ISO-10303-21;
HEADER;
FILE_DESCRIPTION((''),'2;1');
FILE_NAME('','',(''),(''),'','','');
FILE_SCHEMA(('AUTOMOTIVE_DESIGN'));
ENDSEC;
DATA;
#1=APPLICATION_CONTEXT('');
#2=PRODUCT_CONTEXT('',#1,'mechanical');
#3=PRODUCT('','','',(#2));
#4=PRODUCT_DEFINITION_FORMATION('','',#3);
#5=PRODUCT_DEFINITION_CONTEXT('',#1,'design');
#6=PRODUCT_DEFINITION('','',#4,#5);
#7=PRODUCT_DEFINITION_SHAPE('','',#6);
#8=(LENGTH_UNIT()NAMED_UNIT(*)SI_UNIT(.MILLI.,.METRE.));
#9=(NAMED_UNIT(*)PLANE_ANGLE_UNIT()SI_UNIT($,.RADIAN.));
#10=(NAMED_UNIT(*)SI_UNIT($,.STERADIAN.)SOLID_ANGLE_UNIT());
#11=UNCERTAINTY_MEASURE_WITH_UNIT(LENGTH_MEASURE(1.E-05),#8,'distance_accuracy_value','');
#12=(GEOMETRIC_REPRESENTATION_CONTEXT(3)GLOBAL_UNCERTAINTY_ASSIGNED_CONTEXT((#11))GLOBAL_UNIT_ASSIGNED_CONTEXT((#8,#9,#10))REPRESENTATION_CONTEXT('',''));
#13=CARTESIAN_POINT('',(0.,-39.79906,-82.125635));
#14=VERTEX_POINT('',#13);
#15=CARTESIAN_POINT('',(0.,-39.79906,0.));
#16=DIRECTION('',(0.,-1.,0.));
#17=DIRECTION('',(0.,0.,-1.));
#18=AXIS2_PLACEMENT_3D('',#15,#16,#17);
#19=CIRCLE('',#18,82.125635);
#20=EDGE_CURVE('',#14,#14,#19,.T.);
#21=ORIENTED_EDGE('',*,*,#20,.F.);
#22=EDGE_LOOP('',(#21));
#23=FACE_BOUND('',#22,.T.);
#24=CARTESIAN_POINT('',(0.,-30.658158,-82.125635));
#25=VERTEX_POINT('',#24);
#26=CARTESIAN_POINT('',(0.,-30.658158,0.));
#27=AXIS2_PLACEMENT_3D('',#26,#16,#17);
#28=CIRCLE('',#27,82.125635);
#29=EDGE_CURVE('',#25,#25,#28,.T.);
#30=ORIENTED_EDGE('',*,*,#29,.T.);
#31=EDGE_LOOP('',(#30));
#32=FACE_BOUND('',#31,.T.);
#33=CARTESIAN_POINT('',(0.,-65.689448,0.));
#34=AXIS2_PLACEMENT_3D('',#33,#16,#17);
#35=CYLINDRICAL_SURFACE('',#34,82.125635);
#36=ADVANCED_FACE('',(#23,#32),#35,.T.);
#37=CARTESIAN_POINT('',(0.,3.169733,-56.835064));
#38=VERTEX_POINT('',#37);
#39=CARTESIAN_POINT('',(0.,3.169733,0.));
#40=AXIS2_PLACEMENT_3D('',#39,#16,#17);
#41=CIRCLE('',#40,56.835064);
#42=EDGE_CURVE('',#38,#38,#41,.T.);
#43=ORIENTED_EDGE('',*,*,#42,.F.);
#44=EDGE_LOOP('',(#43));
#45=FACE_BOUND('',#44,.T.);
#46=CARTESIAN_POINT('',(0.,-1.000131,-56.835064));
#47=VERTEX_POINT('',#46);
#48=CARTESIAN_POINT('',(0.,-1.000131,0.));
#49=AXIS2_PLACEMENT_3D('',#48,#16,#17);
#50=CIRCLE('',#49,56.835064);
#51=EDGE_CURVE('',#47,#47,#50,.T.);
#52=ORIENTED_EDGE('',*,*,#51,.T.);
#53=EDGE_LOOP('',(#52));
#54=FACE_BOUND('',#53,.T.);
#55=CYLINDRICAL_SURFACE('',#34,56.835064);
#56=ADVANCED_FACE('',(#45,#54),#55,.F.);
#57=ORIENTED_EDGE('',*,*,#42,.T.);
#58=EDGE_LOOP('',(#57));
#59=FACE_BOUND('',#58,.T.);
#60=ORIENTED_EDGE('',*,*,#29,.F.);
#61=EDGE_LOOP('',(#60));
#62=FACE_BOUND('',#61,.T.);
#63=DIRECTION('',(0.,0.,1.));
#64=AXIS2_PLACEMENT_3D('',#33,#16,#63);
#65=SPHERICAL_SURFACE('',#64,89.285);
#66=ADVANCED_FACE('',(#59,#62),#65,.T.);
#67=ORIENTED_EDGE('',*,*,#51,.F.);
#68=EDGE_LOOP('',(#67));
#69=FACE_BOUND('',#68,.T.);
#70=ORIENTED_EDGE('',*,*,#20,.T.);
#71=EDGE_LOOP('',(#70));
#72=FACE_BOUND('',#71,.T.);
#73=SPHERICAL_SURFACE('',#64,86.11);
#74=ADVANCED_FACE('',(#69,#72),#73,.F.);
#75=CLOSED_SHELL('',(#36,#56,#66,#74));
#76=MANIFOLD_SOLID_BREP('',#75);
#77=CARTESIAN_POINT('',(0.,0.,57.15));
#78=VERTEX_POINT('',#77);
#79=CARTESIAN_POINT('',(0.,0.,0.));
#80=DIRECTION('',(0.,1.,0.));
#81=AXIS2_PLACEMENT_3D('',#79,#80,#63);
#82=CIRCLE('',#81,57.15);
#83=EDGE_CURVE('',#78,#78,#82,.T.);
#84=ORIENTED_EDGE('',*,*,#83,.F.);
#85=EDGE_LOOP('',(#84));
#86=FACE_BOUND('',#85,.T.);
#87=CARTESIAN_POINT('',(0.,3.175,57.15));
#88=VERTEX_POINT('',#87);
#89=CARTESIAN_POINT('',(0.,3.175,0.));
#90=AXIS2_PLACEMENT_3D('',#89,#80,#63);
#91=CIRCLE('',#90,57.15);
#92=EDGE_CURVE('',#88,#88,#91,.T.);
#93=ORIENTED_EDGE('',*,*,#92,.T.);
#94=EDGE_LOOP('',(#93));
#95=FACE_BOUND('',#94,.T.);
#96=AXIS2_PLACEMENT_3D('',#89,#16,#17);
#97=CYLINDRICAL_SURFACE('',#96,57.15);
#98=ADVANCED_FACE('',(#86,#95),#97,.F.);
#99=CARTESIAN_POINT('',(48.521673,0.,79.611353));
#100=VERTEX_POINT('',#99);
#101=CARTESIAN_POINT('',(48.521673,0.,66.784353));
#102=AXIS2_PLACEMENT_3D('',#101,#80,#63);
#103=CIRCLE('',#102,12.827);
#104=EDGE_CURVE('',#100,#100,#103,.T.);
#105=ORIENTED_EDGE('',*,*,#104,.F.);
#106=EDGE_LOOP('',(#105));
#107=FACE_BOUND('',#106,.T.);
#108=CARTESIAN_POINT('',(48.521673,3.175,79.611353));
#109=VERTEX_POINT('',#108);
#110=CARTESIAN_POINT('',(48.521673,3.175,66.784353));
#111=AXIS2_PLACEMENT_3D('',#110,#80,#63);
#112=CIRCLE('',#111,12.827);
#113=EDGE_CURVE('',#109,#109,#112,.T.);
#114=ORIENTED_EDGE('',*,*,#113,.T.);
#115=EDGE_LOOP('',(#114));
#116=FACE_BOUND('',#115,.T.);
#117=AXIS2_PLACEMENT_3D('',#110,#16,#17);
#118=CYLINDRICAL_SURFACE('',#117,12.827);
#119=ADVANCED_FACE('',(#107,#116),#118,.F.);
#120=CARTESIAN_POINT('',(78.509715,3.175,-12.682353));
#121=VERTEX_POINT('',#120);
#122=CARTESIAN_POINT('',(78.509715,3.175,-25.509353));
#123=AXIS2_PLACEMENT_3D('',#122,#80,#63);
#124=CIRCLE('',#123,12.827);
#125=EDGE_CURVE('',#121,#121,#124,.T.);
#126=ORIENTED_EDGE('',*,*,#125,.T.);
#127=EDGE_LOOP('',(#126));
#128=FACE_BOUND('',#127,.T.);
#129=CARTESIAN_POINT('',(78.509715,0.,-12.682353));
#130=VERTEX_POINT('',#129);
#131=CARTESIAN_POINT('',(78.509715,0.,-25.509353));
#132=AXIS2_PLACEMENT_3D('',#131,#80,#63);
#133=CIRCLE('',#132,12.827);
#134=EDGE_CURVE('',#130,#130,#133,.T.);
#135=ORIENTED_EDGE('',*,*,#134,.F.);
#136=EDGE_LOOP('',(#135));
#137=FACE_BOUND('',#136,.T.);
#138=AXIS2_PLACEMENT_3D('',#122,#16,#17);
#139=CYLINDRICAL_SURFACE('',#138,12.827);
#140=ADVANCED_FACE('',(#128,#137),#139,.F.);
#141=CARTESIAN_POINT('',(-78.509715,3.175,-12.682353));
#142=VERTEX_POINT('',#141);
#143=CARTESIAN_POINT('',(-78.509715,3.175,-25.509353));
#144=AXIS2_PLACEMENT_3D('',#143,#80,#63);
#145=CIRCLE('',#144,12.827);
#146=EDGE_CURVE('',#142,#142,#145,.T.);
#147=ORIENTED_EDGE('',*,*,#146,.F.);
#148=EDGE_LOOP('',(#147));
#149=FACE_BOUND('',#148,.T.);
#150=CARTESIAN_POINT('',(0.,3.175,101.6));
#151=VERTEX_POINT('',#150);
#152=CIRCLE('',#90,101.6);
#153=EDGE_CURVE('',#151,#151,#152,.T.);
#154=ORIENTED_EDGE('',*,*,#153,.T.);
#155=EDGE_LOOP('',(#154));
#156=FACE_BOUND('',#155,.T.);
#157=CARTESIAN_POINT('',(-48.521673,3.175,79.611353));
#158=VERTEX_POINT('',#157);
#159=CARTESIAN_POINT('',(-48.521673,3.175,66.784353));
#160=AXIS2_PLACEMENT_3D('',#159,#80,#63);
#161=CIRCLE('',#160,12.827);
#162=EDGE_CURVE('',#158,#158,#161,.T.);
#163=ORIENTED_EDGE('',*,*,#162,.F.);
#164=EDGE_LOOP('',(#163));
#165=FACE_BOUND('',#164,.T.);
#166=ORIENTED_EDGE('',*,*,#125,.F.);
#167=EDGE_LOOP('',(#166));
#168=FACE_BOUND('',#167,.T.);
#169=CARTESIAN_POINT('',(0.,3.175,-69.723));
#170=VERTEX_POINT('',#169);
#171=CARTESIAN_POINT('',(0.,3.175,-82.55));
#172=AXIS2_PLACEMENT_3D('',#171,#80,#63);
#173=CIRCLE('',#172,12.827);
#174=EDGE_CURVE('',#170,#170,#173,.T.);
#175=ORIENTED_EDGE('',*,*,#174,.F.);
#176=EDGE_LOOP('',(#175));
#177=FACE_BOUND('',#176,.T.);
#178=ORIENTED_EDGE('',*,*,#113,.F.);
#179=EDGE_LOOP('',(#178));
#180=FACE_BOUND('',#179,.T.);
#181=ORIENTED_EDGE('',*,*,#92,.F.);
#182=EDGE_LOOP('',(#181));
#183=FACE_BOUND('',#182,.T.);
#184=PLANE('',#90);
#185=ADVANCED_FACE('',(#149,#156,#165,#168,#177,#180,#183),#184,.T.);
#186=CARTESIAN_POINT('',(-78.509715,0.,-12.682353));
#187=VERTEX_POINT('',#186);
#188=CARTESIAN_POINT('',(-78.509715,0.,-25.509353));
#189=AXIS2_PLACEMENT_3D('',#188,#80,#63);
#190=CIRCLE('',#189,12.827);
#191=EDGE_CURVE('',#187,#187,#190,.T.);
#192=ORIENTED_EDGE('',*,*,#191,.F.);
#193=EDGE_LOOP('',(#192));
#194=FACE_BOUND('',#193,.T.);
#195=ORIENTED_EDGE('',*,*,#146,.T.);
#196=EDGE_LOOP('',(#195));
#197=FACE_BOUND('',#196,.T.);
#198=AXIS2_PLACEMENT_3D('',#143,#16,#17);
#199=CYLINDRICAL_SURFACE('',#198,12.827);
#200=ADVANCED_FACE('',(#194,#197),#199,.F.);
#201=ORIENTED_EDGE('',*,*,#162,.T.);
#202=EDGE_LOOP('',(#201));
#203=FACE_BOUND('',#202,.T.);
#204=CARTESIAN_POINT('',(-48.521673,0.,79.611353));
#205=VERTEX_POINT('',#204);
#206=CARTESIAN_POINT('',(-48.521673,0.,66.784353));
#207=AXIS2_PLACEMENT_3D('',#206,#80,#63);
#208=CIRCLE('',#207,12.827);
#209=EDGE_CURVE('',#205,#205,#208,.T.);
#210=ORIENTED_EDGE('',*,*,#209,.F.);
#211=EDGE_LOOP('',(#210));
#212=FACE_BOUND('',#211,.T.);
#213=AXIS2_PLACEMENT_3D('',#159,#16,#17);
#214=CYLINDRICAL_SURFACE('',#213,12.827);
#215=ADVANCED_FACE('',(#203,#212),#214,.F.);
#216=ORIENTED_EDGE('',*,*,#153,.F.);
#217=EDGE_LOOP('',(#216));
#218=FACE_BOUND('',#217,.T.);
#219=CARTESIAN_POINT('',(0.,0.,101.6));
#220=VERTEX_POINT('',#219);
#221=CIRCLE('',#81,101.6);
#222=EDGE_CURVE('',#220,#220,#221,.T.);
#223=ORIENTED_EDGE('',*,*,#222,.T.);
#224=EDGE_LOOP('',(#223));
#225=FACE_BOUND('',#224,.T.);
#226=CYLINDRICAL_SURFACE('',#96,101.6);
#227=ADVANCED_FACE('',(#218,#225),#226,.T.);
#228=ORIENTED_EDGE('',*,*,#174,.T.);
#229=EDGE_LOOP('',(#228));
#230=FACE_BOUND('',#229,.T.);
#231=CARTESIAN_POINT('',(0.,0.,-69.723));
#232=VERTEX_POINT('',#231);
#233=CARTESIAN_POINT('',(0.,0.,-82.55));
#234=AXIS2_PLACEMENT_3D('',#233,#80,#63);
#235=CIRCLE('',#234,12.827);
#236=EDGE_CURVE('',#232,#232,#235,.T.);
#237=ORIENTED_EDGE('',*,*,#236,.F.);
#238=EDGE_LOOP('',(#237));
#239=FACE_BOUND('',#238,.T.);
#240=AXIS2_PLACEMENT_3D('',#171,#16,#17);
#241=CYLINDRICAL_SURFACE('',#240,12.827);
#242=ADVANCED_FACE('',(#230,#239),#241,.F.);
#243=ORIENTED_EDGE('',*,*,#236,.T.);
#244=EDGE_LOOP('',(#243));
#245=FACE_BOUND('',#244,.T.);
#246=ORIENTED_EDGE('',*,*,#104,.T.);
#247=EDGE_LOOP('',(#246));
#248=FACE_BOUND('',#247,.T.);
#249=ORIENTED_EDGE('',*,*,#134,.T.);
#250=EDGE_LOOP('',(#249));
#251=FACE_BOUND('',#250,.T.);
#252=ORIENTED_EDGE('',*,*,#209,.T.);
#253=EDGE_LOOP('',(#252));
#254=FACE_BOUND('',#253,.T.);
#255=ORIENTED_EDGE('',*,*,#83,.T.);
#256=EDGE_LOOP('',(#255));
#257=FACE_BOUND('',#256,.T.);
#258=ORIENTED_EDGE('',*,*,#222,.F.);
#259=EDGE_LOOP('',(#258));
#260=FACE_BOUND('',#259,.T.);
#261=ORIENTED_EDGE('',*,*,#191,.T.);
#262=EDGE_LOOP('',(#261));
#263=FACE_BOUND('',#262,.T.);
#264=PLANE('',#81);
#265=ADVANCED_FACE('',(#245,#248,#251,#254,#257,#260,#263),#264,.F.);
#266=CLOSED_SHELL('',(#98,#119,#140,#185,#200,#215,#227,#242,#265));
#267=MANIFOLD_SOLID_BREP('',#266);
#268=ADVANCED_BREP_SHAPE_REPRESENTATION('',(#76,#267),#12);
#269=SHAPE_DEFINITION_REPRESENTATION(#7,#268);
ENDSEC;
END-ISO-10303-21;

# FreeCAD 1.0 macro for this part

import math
import FreeCAD as App
import Part
import Sketcher
Q = App.Units.Quantity

doc = App.newDocument("Part")
body = doc.addObject("PartDesign::Body", "Body")

sketch1 = body.newObject("Sketcher::SketchObject", "Sketch")
sketch1.AttachmentSupport = (doc.getObject("YZ_Plane"), [""])
sketch1.MapMode = "FlatFace"
sketch1.addGeometry([
    Part.LineSegment(App.Vector(-30.7, 82.1, 0), App.Vector(-39.8, 82.1, 0)),
    Part.ArcOfCircle(Part.Circle(App.Vector(-65.7, 0, 0), App.Vector(0, 0, 1), 86.1), math.radians(41), math.radians(73)),
    Part.LineSegment(App.Vector(-1, 56.8, 0), App.Vector(3.2, 56.8, 0)),
    Part.ArcOfCircle(Part.Circle(App.Vector(-65.7, 0, 0), App.Vector(0, 0, 1), 89.3), math.radians(40), math.radians(67)),
], False)
sketch1.addConstraint([
    Sketcher.Constraint("Coincident", 0, 2, 1, 2),
    Sketcher.Constraint("Coincident", 1, 1, 2, 1),
    Sketcher.Constraint("Coincident", 2, 2, 3, 1),
    Sketcher.Constraint("Coincident", 3, 2, 0, 1),
    Sketcher.Constraint("Horizontal", 0),
    Sketcher.Constraint("Horizontal", 2),
    Sketcher.Constraint("Coincident", 3, 3, 1, 3),
    Sketcher.Constraint("PointOnObject", 1, 3, -1),
    Sketcher.Constraint("Radius", 1, 86.11),
    Sketcher.Constraint("Radius", 3, 89.285),
    Sketcher.Constraint("DistanceX", 0, 2, 0, 1, 9.140903),
    Sketcher.Constraint("DistanceX", 2, 1, 2, 2, 4.169864),
    Sketcher.Constraint("DistanceX", 0, 2, -1, 1, 39.79906),
])
revolution = body.newObject("PartDesign::Revolution", "Revolution")
revolution.Profile = sketch1
revolution.ReferenceAxis = (sketch1, ["H_Axis"])
revolution.Angle = 360
body2 = doc.addObject("PartDesign::Body", "Body001")

sketch2 = body2.newObject("Sketcher::SketchObject", "Sketch001")
sketch2.AttachmentSupport = (doc.getObject("XZ_Plane001"), [""])
sketch2.MapMode = "FlatFace"
sketch2.addGeometry([
    Part.Circle(App.Vector(0, 0, 0), App.Vector(0, 0, 1), 102),
    Part.Circle(App.Vector(-49, 67, 0), App.Vector(0, 0, 1), 13),
    Part.Circle(App.Vector(49, 67, 0), App.Vector(0, 0, 1), 13),
    Part.Circle(App.Vector(0, 0, 0), App.Vector(0, 0, 1), 57),
    Part.Circle(App.Vector(-79, -26, 0), App.Vector(0, 0, 1), 13),
    Part.Circle(App.Vector(79, -26, 0), App.Vector(0, 0, 1), 13),
    Part.Circle(App.Vector(0, -83, 0), App.Vector(0, 0, 1), 13),
], False)
sketch2.addConstraint([
    Sketcher.Constraint("Coincident", 0, 3, -1, 1),
    Sketcher.Constraint("Coincident", 3, 3, -1, 1),
    Sketcher.Constraint("Equal", 1, 2),
    Sketcher.Constraint("Equal", 2, 4),
    Sketcher.Constraint("Equal", 4, 5),
    Sketcher.Constraint("Equal", 5, 6),
    Sketcher.Constraint("Symmetric", 1, 3, 2, 3, -2),
    Sketcher.Constraint("Symmetric", 4, 3, 5, 3, -2),
    Sketcher.Constraint("PointOnObject", 6, 3, -2),
    Sketcher.Constraint("Diameter", 0, Q("8 in")),
    Sketcher.Constraint("Diameter", 3, Q("4.5 in")),
    Sketcher.Constraint("Diameter", 1, Q("1.01 in")),
    Sketcher.Constraint("DistanceY", 6, 3, -1, 1, Q("3.25 in")),
    Sketcher.Constraint("DistanceX", 4, 3, 5, 3, 157.019431),
    Sketcher.Constraint("DistanceX", 1, 3, -1, 1, 48.521673),
    Sketcher.Constraint("DistanceY", -1, 1, 1, 3, 66.784353),
    Sketcher.Constraint("DistanceY", 4, 3, -1, 1, 25.509353),
])
pad1 = body2.newObject("PartDesign::Pad", "Pad")
pad1.Profile = sketch2
pad1.Length = Q("0.125 in")
pad1.Reversed = True

doc.recompute()
